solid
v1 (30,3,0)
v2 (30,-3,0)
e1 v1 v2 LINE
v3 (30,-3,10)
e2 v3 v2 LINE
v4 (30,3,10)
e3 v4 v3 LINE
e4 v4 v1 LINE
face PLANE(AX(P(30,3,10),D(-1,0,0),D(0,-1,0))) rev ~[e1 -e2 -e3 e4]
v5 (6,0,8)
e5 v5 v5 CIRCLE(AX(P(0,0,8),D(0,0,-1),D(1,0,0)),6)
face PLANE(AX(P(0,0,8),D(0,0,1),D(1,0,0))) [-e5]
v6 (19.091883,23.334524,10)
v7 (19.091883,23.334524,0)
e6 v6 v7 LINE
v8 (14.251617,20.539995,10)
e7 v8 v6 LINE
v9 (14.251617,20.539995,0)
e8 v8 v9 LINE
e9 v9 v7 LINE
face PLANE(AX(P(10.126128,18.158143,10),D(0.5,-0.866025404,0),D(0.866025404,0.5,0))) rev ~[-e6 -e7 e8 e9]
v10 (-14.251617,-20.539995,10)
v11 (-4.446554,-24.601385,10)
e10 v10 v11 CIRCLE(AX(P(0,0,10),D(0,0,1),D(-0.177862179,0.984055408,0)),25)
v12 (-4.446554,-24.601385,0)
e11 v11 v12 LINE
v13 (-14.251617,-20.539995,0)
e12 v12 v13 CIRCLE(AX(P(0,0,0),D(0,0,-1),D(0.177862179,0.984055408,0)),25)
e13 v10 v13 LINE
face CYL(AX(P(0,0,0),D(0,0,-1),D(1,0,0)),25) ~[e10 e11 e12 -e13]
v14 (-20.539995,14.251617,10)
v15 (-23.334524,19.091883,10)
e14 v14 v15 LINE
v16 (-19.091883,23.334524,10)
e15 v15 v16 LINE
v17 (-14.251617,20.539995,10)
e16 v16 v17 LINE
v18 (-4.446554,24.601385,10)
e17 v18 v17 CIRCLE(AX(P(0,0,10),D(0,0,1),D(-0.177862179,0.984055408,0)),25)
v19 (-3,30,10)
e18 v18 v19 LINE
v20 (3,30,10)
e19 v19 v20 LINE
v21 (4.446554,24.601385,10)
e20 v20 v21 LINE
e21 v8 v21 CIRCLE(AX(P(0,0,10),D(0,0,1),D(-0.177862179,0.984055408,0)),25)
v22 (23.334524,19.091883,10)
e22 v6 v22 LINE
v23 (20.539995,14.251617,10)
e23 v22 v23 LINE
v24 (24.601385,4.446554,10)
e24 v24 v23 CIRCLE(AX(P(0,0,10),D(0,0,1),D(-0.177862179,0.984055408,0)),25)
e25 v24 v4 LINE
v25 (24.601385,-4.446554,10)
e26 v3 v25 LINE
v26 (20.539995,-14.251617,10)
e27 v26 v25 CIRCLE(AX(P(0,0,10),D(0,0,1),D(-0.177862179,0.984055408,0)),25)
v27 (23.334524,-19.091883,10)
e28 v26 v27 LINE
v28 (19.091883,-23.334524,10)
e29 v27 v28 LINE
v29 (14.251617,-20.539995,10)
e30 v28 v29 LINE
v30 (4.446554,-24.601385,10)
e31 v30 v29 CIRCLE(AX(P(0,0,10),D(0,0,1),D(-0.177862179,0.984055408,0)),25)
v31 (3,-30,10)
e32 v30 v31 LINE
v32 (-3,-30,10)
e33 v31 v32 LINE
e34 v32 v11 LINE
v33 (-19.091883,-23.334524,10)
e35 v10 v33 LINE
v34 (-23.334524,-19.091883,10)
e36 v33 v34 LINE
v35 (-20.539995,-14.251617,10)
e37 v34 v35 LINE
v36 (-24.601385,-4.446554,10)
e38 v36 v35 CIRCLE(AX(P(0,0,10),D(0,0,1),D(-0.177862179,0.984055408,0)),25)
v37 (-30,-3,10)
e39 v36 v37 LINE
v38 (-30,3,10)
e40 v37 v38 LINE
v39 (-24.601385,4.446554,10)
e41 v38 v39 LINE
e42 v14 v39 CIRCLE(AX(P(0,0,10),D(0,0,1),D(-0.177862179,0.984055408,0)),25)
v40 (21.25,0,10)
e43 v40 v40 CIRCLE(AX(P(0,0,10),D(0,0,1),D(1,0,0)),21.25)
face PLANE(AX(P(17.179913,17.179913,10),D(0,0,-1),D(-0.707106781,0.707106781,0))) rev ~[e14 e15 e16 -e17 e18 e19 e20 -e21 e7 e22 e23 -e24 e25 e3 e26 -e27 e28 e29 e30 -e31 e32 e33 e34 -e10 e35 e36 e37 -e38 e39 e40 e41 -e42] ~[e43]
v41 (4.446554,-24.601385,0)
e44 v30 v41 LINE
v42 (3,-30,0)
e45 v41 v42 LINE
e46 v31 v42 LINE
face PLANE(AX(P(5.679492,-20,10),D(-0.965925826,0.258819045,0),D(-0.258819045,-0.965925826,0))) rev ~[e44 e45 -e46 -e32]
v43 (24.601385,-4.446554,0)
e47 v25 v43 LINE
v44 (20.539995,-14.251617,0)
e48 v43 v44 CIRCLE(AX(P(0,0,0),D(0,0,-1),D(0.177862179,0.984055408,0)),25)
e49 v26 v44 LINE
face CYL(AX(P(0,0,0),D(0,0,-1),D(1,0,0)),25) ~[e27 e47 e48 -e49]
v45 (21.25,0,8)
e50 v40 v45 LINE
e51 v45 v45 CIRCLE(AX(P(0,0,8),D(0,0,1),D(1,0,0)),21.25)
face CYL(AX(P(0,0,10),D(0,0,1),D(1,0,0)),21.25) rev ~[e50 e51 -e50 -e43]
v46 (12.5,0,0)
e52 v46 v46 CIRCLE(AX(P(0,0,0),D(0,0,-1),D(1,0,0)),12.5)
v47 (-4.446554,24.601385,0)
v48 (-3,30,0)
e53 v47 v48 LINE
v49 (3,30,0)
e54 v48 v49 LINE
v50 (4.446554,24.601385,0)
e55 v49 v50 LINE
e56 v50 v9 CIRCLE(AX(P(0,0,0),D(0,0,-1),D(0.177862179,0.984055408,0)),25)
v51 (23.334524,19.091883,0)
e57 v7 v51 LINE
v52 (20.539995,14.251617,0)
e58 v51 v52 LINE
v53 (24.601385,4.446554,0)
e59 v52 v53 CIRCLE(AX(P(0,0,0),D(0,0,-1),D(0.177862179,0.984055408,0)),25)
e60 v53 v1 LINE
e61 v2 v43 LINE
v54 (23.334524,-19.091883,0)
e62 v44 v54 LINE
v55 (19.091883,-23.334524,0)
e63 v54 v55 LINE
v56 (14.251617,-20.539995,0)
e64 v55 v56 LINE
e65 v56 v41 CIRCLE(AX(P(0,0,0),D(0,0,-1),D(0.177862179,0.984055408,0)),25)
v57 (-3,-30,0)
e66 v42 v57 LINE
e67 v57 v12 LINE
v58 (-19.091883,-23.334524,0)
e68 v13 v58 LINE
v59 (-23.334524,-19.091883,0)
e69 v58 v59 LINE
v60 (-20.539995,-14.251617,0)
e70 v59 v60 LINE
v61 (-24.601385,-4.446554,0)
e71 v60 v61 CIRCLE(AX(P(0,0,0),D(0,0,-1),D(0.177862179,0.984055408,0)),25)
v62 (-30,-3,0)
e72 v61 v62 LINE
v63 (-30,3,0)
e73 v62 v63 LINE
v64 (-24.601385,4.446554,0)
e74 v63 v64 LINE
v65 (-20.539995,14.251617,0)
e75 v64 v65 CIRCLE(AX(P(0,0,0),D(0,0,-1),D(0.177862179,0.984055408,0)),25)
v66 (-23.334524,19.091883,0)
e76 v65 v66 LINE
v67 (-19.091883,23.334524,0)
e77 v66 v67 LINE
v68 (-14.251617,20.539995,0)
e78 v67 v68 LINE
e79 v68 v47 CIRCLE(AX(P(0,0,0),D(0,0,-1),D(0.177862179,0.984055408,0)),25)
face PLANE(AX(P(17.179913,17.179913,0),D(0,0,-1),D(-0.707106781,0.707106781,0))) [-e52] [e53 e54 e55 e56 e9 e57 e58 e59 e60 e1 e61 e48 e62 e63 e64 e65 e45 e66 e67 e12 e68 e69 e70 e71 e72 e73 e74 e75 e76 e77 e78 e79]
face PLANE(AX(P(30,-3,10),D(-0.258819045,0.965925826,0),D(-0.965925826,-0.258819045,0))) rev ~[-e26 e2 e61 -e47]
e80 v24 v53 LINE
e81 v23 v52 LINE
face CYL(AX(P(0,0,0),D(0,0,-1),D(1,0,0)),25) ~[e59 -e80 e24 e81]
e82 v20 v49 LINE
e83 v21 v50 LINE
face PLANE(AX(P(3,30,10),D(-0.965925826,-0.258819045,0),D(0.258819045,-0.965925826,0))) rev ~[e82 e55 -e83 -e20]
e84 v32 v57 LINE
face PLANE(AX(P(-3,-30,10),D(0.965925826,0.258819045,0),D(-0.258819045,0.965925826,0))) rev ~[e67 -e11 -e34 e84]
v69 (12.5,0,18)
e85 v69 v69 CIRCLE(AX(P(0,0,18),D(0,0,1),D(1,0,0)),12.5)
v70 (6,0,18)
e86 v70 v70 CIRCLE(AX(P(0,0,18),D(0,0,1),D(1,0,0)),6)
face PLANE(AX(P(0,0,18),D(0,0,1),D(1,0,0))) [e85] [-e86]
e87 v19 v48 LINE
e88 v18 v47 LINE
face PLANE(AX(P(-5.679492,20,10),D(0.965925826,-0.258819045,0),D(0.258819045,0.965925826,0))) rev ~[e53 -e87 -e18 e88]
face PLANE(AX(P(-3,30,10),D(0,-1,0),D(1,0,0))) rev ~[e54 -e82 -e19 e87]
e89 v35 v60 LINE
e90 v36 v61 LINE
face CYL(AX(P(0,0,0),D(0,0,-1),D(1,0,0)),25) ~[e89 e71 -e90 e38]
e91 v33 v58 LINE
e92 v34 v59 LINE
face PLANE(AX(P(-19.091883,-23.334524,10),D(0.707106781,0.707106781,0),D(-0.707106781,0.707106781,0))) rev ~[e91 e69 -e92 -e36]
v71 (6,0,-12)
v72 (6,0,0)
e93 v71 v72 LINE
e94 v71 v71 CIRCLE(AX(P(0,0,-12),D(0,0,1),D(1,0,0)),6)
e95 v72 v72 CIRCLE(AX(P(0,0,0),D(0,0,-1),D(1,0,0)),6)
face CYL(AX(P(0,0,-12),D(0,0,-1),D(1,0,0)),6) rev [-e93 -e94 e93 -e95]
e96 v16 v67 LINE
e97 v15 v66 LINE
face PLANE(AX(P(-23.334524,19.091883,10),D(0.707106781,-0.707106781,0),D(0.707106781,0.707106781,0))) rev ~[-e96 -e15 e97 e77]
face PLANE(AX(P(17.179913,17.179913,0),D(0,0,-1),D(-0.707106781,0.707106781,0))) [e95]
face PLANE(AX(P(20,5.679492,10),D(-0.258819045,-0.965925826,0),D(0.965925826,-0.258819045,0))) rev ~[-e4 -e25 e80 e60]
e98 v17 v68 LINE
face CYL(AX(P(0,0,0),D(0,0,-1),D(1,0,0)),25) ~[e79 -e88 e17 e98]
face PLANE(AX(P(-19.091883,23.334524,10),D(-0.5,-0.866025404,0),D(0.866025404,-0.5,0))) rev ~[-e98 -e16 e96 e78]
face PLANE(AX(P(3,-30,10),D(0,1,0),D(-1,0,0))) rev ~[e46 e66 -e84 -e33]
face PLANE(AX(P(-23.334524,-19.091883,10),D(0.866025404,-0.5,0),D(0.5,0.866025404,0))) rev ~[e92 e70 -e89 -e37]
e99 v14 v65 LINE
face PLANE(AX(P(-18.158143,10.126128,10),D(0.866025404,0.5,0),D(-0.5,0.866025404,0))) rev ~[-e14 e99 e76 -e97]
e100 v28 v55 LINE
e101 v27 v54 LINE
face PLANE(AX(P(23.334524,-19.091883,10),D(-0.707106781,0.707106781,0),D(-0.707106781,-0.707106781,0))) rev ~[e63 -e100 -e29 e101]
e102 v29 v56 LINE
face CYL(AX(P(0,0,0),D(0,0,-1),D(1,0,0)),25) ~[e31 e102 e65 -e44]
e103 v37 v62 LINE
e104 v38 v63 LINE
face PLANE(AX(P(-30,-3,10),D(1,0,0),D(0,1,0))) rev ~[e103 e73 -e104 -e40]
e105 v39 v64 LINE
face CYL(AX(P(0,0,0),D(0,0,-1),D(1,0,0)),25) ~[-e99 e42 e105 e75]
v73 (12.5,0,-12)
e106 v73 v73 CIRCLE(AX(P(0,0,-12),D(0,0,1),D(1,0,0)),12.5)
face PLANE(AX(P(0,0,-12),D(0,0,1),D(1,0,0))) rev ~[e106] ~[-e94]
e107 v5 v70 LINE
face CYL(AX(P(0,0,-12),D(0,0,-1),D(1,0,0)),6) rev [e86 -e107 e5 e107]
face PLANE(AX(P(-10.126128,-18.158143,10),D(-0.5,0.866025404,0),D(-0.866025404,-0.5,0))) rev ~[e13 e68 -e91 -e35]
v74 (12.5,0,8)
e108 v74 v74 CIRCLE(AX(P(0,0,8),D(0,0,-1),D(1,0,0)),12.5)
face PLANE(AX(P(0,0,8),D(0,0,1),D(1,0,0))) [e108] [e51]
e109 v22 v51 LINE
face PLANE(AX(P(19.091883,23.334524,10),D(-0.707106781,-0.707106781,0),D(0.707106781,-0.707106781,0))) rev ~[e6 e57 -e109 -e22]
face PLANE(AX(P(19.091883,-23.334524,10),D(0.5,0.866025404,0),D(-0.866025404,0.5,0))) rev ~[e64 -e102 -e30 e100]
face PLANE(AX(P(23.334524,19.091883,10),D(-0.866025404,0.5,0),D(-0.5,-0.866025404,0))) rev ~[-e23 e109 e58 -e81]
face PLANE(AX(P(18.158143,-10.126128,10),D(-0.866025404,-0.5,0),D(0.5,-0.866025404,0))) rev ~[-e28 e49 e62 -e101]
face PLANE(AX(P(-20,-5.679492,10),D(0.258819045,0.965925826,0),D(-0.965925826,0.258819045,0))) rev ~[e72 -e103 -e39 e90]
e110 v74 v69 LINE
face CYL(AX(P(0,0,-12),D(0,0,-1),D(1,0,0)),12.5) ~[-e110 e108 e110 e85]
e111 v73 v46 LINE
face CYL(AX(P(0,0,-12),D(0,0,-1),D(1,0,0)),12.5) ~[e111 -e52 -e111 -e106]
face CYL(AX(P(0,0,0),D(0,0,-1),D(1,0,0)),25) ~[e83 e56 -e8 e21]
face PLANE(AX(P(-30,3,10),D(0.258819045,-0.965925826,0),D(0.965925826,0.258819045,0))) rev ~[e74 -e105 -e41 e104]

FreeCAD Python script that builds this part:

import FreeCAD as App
import Part
import Sketcher

V = App.Vector
Q = App.Units.Quantity


def add_polygon(sketch, points):
    """Adds a closed chain of lines whose ends are joined by coincident constraints."""
    first, n = sketch.GeometryCount, len(points)
    for a, b in zip(points, points[1:] + points[:1]):
        sketch.addGeometry(Part.LineSegment(App.Vector(*a, 0), App.Vector(*b, 0)), False)
    for i in range(n):
        sketch.addConstraint(Sketcher.Constraint("Coincident", first + i, 2, first + (i + 1) % n, 1))

doc = App.newDocument("Part")
body = doc.addObject("PartDesign::Body", "Body")

sketch1 = body.newObject("Sketcher::SketchObject", "Sketch")
sketch1.AttachmentSupport = (doc.getObject("XY_Plane"), [""])
sketch1.MapMode = "FlatFace"
sketch1.addGeometry(Part.Circle(V(0, 0, 0), V(0, 0, 1), 25), False)
sketch1.addConstraint([
    Sketcher.Constraint("Coincident", 0, 3, -1, 1),
    Sketcher.Constraint("Diameter", 0, 50.0),
])
pad1 = body.newObject("PartDesign::Pad", "Pad")
pad1.Profile = sketch1
pad1.Length = 10

sketch2 = body.newObject("Sketcher::SketchObject", "Sketch001")
sketch2.AttachmentSupport = (doc.getObject("XY_Plane"), [""])
sketch2.MapMode = "FlatFace"
sketch2.AttachmentOffset = App.Placement(V(0, 0, 10), App.Rotation())
add_polygon(sketch2, [(3, 30), (-3, 30), (-5.679492, 20), (5.679492, 20)])
sketch2.addConstraint([
    Sketcher.Constraint("Horizontal", 0),
    Sketcher.Constraint("Horizontal", 2),
    Sketcher.Constraint("Equal", 1, 3),
    Sketcher.Constraint("DistanceX", 0, 2, 0, 1, 6.0),
    Sketcher.Constraint("Angle", 1, Q("-105 deg")),
    Sketcher.Constraint("DistanceX", 0, 2, -1, 1, 3.0),
    Sketcher.Constraint("DistanceY", -1, 1, 0, 2, 30.0),
    Sketcher.Constraint("DistanceY", -1, 1, 1, 2, 20.0),
])
pad2 = body.newObject("PartDesign::Pad", "Pad001")
pad2.Profile = sketch2
pad2.Length = 10
pad2.Reversed = True
doc.recompute()

polarpattern = body.newObject("PartDesign::PolarPattern", "PolarPattern")
polarpattern.Originals = [pad2]
polarpattern.Axis = (doc.getObject("Z_Axis"), [""])
polarpattern.Angle = 360
polarpattern.Occurrences = 8
body.Tip = polarpattern

sketch3 = body.newObject("Sketcher::SketchObject", "Sketch002")
sketch3.AttachmentSupport = (doc.getObject("XY_Plane"), [""])
sketch3.MapMode = "FlatFace"
sketch3.AttachmentOffset = App.Placement(V(0, 0, 10), App.Rotation())
sketch3.addGeometry(Part.Circle(V(0, 0, 0), V(0, 0, 1), 21.25), False)
sketch3.addConstraint([
    Sketcher.Constraint("Coincident", 0, 3, -1, 1),
    Sketcher.Constraint("Diameter", 0, 42.5),
])
pocket1 = body.newObject("PartDesign::Pocket", "Pocket")
pocket1.Profile = sketch3
pocket1.Length = 2

sketch4 = body.newObject("Sketcher::SketchObject", "Sketch003")
sketch4.AttachmentSupport = (doc.getObject("XY_Plane"), [""])
sketch4.MapMode = "FlatFace"
sketch4.AttachmentOffset = App.Placement(V(0, 0, 8), App.Rotation())
sketch4.addGeometry([
    Part.Circle(V(0, 0, 0), V(0, 0, 1), 12.5),
    Part.Circle(V(0, 0, 0), V(0, 0, 1), 6),
], False)
sketch4.addConstraint([
    Sketcher.Constraint("Coincident", 0, 3, -1, 1),
    Sketcher.Constraint("Coincident", 1, 3, -1, 1),
    Sketcher.Constraint("Diameter", 0, 25.0),
    Sketcher.Constraint("Diameter", 1, 12.0),
])
pad3 = body.newObject("PartDesign::Pad", "Pad002")
pad3.Profile = sketch4
pad3.Type = "TwoLengths"
pad3.Length = 10
pad3.Length2 = 20

doc.recompute()
